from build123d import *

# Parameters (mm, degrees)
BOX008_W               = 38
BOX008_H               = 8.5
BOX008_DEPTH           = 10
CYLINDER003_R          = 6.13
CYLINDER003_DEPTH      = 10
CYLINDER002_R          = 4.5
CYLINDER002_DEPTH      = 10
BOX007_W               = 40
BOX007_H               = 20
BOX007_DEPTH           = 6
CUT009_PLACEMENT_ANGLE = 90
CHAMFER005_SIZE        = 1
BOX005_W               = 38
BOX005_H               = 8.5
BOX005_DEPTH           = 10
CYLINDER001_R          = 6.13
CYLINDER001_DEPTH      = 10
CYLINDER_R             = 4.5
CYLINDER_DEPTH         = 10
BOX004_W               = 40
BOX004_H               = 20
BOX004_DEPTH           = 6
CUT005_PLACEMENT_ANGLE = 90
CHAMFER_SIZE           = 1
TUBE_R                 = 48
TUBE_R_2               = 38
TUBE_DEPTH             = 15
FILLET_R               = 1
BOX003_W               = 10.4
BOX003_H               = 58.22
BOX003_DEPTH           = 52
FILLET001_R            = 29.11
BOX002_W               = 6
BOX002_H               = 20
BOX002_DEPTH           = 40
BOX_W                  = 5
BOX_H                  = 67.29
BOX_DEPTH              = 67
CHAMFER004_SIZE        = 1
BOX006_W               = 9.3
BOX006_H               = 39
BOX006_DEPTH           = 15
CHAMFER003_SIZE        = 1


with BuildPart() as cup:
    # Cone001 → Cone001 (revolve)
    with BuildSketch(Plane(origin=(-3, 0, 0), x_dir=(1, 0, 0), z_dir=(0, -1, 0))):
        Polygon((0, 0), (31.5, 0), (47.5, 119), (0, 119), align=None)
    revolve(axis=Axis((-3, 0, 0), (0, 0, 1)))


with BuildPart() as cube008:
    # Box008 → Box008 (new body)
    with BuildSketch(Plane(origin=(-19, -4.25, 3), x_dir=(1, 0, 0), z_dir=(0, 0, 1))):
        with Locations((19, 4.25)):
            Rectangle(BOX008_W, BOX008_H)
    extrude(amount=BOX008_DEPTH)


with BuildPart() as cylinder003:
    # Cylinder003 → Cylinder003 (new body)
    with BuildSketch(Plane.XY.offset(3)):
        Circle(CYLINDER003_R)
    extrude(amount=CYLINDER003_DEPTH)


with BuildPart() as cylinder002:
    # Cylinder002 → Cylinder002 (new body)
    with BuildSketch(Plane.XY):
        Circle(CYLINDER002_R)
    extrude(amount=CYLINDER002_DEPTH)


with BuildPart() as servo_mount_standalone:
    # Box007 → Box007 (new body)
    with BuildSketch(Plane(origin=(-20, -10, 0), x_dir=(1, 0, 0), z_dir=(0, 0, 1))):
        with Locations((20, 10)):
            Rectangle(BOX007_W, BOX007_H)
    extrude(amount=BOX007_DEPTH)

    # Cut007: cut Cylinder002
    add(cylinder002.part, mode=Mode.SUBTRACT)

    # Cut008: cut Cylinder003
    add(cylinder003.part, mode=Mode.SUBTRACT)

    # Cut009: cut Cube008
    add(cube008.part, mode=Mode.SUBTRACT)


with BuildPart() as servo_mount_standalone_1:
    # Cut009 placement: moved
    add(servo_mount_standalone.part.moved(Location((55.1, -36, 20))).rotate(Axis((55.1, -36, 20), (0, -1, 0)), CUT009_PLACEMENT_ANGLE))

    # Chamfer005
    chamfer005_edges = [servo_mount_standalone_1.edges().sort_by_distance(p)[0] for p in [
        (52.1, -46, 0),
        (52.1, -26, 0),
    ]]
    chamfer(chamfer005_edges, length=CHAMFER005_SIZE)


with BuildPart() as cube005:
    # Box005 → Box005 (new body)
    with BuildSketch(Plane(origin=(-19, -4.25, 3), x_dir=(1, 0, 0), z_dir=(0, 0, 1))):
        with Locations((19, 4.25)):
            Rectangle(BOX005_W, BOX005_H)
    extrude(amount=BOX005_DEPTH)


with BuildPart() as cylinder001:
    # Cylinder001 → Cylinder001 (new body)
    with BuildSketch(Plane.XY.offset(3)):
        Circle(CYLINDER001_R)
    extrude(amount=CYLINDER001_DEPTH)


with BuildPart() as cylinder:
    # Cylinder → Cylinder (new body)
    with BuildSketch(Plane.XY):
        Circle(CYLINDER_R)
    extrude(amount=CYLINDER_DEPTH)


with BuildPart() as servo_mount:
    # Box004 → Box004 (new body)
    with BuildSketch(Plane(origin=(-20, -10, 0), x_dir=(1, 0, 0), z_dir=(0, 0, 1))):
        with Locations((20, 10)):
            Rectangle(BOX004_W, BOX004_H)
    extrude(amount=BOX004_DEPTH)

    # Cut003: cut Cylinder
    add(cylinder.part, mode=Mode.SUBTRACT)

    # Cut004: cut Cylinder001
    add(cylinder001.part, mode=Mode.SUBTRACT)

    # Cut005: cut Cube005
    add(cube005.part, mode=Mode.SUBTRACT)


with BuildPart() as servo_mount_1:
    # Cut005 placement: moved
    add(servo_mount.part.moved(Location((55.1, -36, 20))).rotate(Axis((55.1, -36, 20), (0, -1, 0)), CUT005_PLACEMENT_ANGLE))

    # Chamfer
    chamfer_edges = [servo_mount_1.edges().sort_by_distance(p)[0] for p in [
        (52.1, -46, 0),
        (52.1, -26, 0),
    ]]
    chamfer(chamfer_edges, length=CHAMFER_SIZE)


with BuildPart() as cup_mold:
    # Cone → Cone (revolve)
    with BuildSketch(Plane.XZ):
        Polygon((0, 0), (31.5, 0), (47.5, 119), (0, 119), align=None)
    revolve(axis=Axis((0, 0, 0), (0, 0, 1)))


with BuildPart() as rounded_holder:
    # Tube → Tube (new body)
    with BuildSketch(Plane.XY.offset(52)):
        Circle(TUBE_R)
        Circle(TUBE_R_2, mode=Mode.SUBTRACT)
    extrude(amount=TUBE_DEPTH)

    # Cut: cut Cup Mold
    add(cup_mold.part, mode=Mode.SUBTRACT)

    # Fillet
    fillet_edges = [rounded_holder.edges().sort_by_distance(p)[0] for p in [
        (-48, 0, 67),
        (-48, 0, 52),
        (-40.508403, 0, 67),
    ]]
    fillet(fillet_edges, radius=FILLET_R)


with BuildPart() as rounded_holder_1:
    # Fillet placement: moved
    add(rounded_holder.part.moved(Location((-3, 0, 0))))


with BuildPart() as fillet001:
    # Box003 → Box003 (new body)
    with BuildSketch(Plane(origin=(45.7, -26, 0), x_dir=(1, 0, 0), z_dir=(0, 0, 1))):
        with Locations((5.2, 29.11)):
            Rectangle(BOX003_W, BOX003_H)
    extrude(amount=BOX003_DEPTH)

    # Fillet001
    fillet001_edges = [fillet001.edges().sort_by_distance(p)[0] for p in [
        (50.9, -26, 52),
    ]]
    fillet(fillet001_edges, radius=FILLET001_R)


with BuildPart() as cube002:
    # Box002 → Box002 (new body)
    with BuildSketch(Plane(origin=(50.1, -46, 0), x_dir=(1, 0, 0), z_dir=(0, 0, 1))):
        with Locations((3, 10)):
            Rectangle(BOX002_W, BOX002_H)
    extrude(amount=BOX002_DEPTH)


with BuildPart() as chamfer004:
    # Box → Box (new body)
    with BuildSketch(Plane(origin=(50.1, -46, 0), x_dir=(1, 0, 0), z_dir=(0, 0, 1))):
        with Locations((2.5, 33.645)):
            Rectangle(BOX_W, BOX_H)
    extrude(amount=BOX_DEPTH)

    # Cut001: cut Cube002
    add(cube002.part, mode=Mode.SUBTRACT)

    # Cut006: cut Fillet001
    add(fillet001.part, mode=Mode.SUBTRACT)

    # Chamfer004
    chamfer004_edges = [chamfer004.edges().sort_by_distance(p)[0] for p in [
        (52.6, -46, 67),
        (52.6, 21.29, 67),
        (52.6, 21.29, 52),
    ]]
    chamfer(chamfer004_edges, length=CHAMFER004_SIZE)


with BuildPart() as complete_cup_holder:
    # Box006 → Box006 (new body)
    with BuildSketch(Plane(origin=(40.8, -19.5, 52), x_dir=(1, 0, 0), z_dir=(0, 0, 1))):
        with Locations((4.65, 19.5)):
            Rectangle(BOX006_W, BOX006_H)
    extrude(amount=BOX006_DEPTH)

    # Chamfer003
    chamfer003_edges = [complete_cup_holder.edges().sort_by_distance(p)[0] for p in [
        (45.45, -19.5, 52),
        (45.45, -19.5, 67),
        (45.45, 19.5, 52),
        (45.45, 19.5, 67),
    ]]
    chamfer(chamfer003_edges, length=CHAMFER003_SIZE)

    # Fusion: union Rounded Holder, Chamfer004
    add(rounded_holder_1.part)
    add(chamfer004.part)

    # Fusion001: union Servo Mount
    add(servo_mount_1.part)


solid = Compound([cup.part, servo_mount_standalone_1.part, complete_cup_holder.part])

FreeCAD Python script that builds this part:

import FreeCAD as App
import Part
import Sketcher

V = App.Vector


def edges_at(feature, points):
    """Names of the edges that pass closest to the given points."""
    edges = feature.Shape.Edges
    near = lambda p: min(range(len(edges)), key=lambda i: edges[i].distToShape(Part.Vertex(*p))[0])
    return sorted({f"Edge{near(p) + 1}" for p in points})


def add_polygon(sketch, points):
    """Adds a closed chain of lines whose ends are joined by coincident constraints."""
    first, n = sketch.GeometryCount, len(points)
    for a, b in zip(points, points[1:] + points[:1]):
        sketch.addGeometry(Part.LineSegment(App.Vector(*a, 0), App.Vector(*b, 0)), False)
    for i in range(n):
        sketch.addConstraint(Sketcher.Constraint("Coincident", first + i, 2, first + (i + 1) % n, 1))

doc = App.newDocument("Part")
body = doc.addObject("PartDesign::Body", "Body")

# Sketch on XZ plane
sketch1 = body.newObject("Sketcher::SketchObject", "Sketch")
sketch1.AttachmentSupport = (doc.getObject("XZ_Plane"), [""])
sketch1.MapMode = "FlatFace"
add_polygon(sketch1, [(-3, 0), (28, 0), (44, 119), (-3, 119)])  # lines 0-3
sketch1.addGeometry(Part.LineSegment(V(-3, 0, 0), V(-3, 119, 0)), True)  # axis
sketch1.addConstraint([
    Sketcher.Constraint("Horizontal", 0),
    Sketcher.Constraint("Horizontal", 2),
    Sketcher.Constraint("Vertical", 3),
    Sketcher.Constraint("Vertical", 4),
    Sketcher.Constraint("Coincident", 4, 1, 3, 2),
    Sketcher.Constraint("PointOnObject", 0, 2, -1),
    Sketcher.Constraint("Horizontal", 1, 2, 4, 2),
    Sketcher.Constraint("DistanceY", 3, 2, 3, 1, 119.0),
    Sketcher.Constraint("DistanceX", 0, 1, 0, 2, 31.5),
    Sketcher.Constraint("DistanceX", 2, 2, 2, 1, 47.5),
    Sketcher.Constraint("DistanceX", 2, 2, -1, 1, 3.0),
])
revolution = body.newObject("PartDesign::Revolution", "Revolution")
revolution.Profile = sketch1
revolution.ReferenceAxis = (sketch1, ["Axis0"])
revolution.Angle = 360
body2 = doc.addObject("PartDesign::Body", "Body001")

# Sketch on XY plane
sketch2 = body2.newObject("Sketcher::SketchObject", "Sketch001")
sketch2.AttachmentSupport = (doc.getObject("XY_Plane001"), [""])
sketch2.MapMode = "FlatFace"
sketch2.AttachmentOffset = App.Placement(V(0, 0, 3), App.Rotation())
add_polygon(sketch2, [(-19, 4), (-19, -4), (19, -4), (19, 4)])  # lines 0-3
sketch2.addConstraint([
    Sketcher.Constraint("Vertical", 0),
    Sketcher.Constraint("Horizontal", 1),
    Sketcher.Constraint("Vertical", 2),
    Sketcher.Constraint("Horizontal", 3),
    Sketcher.Constraint("Symmetric", 0, 2, 2, 2, -1, 1),
    Sketcher.Constraint("DistanceX", 1, 1, 1, 2, 38.0),
    Sketcher.Constraint("DistanceY", 0, 2, 0, 1, 8.5),
])
pad1 = body2.newObject("PartDesign::Pad", "Pad")
pad1.Profile = sketch2
pad1.Length = 10
body3 = doc.addObject("PartDesign::Body", "Body002")

# Sketch on XY plane
sketch3 = body3.newObject("Sketcher::SketchObject", "Sketch002")
sketch3.AttachmentSupport = (doc.getObject("XY_Plane002"), [""])
sketch3.MapMode = "FlatFace"
sketch3.AttachmentOffset = App.Placement(V(0, 0, 3), App.Rotation())
sketch3.addGeometry(Part.Circle(V(0, 0, 0), V(0, 0, 1), 6), False)
sketch3.addConstraint([
    Sketcher.Constraint("Coincident", 0, 3, -1, 1),
    Sketcher.Constraint("Diameter", 0, 12.26),
])
pad2 = body3.newObject("PartDesign::Pad", "Pad001")
pad2.Profile = sketch3
pad2.Length = 10
body4 = doc.addObject("PartDesign::Body", "Body003")

# Sketch on XY plane
sketch4 = body4.newObject("Sketcher::SketchObject", "Sketch003")
sketch4.AttachmentSupport = (doc.getObject("XY_Plane003"), [""])
sketch4.MapMode = "FlatFace"
sketch4.addGeometry(Part.Circle(V(0, 0, 0), V(0, 0, 1), 4.5), False)
sketch4.addConstraint([
    Sketcher.Constraint("Coincident", 0, 3, -1, 1),
    Sketcher.Constraint("Diameter", 0, 9.0),
])
pad3 = body4.newObject("PartDesign::Pad", "Pad002")
pad3.Profile = sketch4
pad3.Length = 10
body5 = doc.addObject("PartDesign::Body", "Body004")

# Sketch on XY plane
sketch5 = body5.newObject("Sketcher::SketchObject", "Sketch004")
sketch5.AttachmentSupport = (doc.getObject("XY_Plane004"), [""])
sketch5.MapMode = "FlatFace"
add_polygon(sketch5, [(-20, 10), (-20, -10), (20, -10), (20, 10)])  # lines 0-3
sketch5.addConstraint([
    Sketcher.Constraint("Vertical", 0),
    Sketcher.Constraint("Horizontal", 1),
    Sketcher.Constraint("Vertical", 2),
    Sketcher.Constraint("Horizontal", 3),
    Sketcher.Constraint("Symmetric", 0, 2, 2, 2, -1, 1),
    Sketcher.Constraint("DistanceX", 1, 1, 1, 2, 40.0),
    Sketcher.Constraint("DistanceY", 0, 2, 0, 1, 20.0),
])
pad4 = body5.newObject("PartDesign::Pad", "Pad003")
pad4.Profile = sketch5
pad4.Length = 6
doc.recompute()

boolean = body5.newObject("PartDesign::Boolean", "Boolean")
boolean.Type = "Cut"
boolean.addObjects([body4])
doc.recompute()

boolean2 = body5.newObject("PartDesign::Boolean", "Boolean001")
boolean2.Type = "Cut"
boolean2.addObjects([body3])
doc.recompute()

boolean3 = body5.newObject("PartDesign::Boolean", "Boolean002")
boolean3.Type = "Cut"
boolean3.addObjects([body2])
body6 = doc.addObject("PartDesign::Body", "Body005")
doc.recompute()

body5.Placement = App.Placement(V(55.1, -36, 20), App.Rotation(V(0, -1, 0), 90))
boolean4 = body6.newObject("PartDesign::Boolean", "Boolean003")
boolean4.Type = "Fuse"
boolean4.addObjects([body5])
doc.recompute()

chamfer = body6.newObject("PartDesign::Chamfer", "Chamfer")
chamfer.Base = (boolean4, edges_at(boolean4, [(52.1, -46, 0), (52.1, -26, 0)]))
chamfer.Size = 1
body7 = doc.addObject("PartDesign::Body", "Body006")

# Sketch on XY plane
sketch6 = body7.newObject("Sketcher::SketchObject", "Sketch005")
sketch6.AttachmentSupport = (doc.getObject("XY_Plane006"), [""])
sketch6.MapMode = "FlatFace"
sketch6.AttachmentOffset = App.Placement(V(0, 0, 3), App.Rotation())
add_polygon(sketch6, [(-19, 4), (-19, -4), (19, -4), (19, 4)])  # lines 0-3
sketch6.addConstraint([
    Sketcher.Constraint("Vertical", 0),
    Sketcher.Constraint("Horizontal", 1),
    Sketcher.Constraint("Vertical", 2),
    Sketcher.Constraint("Horizontal", 3),
    Sketcher.Constraint("Symmetric", 0, 2, 2, 2, -1, 1),
    Sketcher.Constraint("DistanceX", 1, 1, 1, 2, 38.0),
    Sketcher.Constraint("DistanceY", 0, 2, 0, 1, 8.5),
])
pad5 = body7.newObject("PartDesign::Pad", "Pad004")
pad5.Profile = sketch6
pad5.Length = 10
body8 = doc.addObject("PartDesign::Body", "Body007")

# Sketch on XY plane
sketch7 = body8.newObject("Sketcher::SketchObject", "Sketch006")
sketch7.AttachmentSupport = (doc.getObject("XY_Plane007"), [""])
sketch7.MapMode = "FlatFace"
sketch7.AttachmentOffset = App.Placement(V(0, 0, 3), App.Rotation())
sketch7.addGeometry(Part.Circle(V(0, 0, 0), V(0, 0, 1), 6), False)
sketch7.addConstraint([
    Sketcher.Constraint("Coincident", 0, 3, -1, 1),
    Sketcher.Constraint("Diameter", 0, 12.26),
])
pad6 = body8.newObject("PartDesign::Pad", "Pad005")
pad6.Profile = sketch7
pad6.Length = 10
body9 = doc.addObject("PartDesign::Body", "Body008")

# Sketch on XY plane
sketch8 = body9.newObject("Sketcher::SketchObject", "Sketch007")
sketch8.AttachmentSupport = (doc.getObject("XY_Plane008"), [""])
sketch8.MapMode = "FlatFace"
sketch8.addGeometry(Part.Circle(V(0, 0, 0), V(0, 0, 1), 4.5), False)
sketch8.addConstraint([
    Sketcher.Constraint("Coincident", 0, 3, -1, 1),
    Sketcher.Constraint("Diameter", 0, 9.0),
])
pad7 = body9.newObject("PartDesign::Pad", "Pad006")
pad7.Profile = sketch8
pad7.Length = 10
body10 = doc.addObject("PartDesign::Body", "Body009")

# Sketch on XY plane
sketch9 = body10.newObject("Sketcher::SketchObject", "Sketch008")
sketch9.AttachmentSupport = (doc.getObject("XY_Plane009"), [""])
sketch9.MapMode = "FlatFace"
add_polygon(sketch9, [(-20, 10), (-20, -10), (20, -10), (20, 10)])  # lines 0-3
sketch9.addConstraint([
    Sketcher.Constraint("Vertical", 0),
    Sketcher.Constraint("Horizontal", 1),
    Sketcher.Constraint("Vertical", 2),
    Sketcher.Constraint("Horizontal", 3),
    Sketcher.Constraint("Symmetric", 0, 2, 2, 2, -1, 1),
    Sketcher.Constraint("DistanceX", 1, 1, 1, 2, 40.0),
    Sketcher.Constraint("DistanceY", 0, 2, 0, 1, 20.0),
])
pad8 = body10.newObject("PartDesign::Pad", "Pad007")
pad8.Profile = sketch9
pad8.Length = 6
doc.recompute()

boolean5 = body10.newObject("PartDesign::Boolean", "Boolean004")
boolean5.Type = "Cut"
boolean5.addObjects([body9])
doc.recompute()

boolean6 = body10.newObject("PartDesign::Boolean", "Boolean005")
boolean6.Type = "Cut"
boolean6.addObjects([body8])
doc.recompute()

boolean7 = body10.newObject("PartDesign::Boolean", "Boolean006")
boolean7.Type = "Cut"
boolean7.addObjects([body7])
body11 = doc.addObject("PartDesign::Body", "Body010")
doc.recompute()

body10.Placement = App.Placement(V(55.1, -36, 20), App.Rotation(V(0, -1, 0), 90))
boolean8 = body11.newObject("PartDesign::Boolean", "Boolean007")
boolean8.Type = "Fuse"
boolean8.addObjects([body10])
doc.recompute()

chamfer2 = body11.newObject("PartDesign::Chamfer", "Chamfer001")
chamfer2.Base = (boolean8, edges_at(boolean8, [(52.1, -46, 0), (52.1, -26, 0)]))
chamfer2.Size = 1
body12 = doc.addObject("PartDesign::Body", "Body011")

# Sketch on XZ plane
sketch10 = body12.newObject("Sketcher::SketchObject", "Sketch009")
sketch10.AttachmentSupport = (doc.getObject("XZ_Plane011"), [""])
sketch10.MapMode = "FlatFace"
add_polygon(sketch10, [(0, 0), (32, 0), (48, 119), (0, 119)])  # lines 0-3
sketch10.addConstraint([
    Sketcher.Constraint("Horizontal", 0),
    Sketcher.Constraint("Horizontal", 2),
    Sketcher.Constraint("Vertical", 3),
    Sketcher.Constraint("Coincident", 3, 2, -1, 1),
    Sketcher.Constraint("DistanceY", 3, 2, 3, 1, 119.0),
    Sketcher.Constraint("DistanceX", 0, 1, 0, 2, 31.5),
    Sketcher.Constraint("DistanceX", 2, 2, 2, 1, 47.5),
])
revolution2 = body12.newObject("PartDesign::Revolution", "Revolution001")
revolution2.Profile = sketch10
revolution2.ReferenceAxis = (sketch10, ["V_Axis"])
revolution2.Angle = 360
body13 = doc.addObject("PartDesign::Body", "Body012")

# Sketch on XY plane
sketch11 = body13.newObject("Sketcher::SketchObject", "Sketch010")
sketch11.AttachmentSupport = (doc.getObject("XY_Plane012"), [""])
sketch11.MapMode = "FlatFace"
sketch11.AttachmentOffset = App.Placement(V(0, 0, 52), App.Rotation())
sketch11.addGeometry([
    Part.Circle(V(0, 0, 0), V(0, 0, 1), 48),
    Part.Circle(V(0, 0, 0), V(0, 0, 1), 38),
], False)
sketch11.addConstraint([
    Sketcher.Constraint("Coincident", 0, 3, -1, 1),
    Sketcher.Constraint("Coincident", 1, 3, -1, 1),
    Sketcher.Constraint("Diameter", 0, 96.0),
    Sketcher.Constraint("Diameter", 1, 76.0),
])
pad9 = body13.newObject("PartDesign::Pad", "Pad008")
pad9.Profile = sketch11
pad9.Length = 15
doc.recompute()

boolean9 = body13.newObject("PartDesign::Boolean", "Boolean008")
boolean9.Type = "Cut"
boolean9.addObjects([body12])
doc.recompute()

fillet = body13.newObject("PartDesign::Fillet", "Fillet")
fillet.Base = (boolean9, edges_at(boolean9, [(-48, 0, 67), (-48, 0, 52), (-40.508, 0, 67)]))
fillet.Radius = 1
body14 = doc.addObject("PartDesign::Body", "Body013")
doc.recompute()

body13.Placement = App.Placement(V(-3, 0, 0), App.Rotation(V(0, 0, 1), 0))
boolean10 = body14.newObject("PartDesign::Boolean", "Boolean009")
boolean10.Type = "Fuse"
boolean10.addObjects([body13])
body15 = doc.addObject("PartDesign::Body", "Body014")

# Sketch on XY plane
sketch12 = body15.newObject("Sketcher::SketchObject", "Sketch011")
sketch12.AttachmentSupport = (doc.getObject("XY_Plane014"), [""])
sketch12.MapMode = "FlatFace"
add_polygon(sketch12, [(46, 32), (46, -26), (56, -26), (56, 32)])  # lines 0-3
sketch12.addConstraint([
    Sketcher.Constraint("Vertical", 0),
    Sketcher.Constraint("Horizontal", 1),
    Sketcher.Constraint("Vertical", 2),
    Sketcher.Constraint("Horizontal", 3),
    Sketcher.Constraint("DistanceX", 1, 1, 1, 2, 10.4),
    Sketcher.Constraint("DistanceY", 0, 2, -1, 1, 26.0),
    Sketcher.Constraint("DistanceY", 0, 2, 0, 1, 58.22),
    Sketcher.Constraint("DistanceX", -1, 1, 0, 2, 45.7),
])
pad10 = body15.newObject("PartDesign::Pad", "Pad009")
pad10.Profile = sketch12
pad10.Length = 52
doc.recompute()

fillet2 = body15.newObject("PartDesign::Fillet", "Fillet001")
fillet2.Base = (pad10, edges_at(pad10, [(50.9, -26, 52)]))
fillet2.Radius = 29.11
body16 = doc.addObject("PartDesign::Body", "Body015")

# Sketch on XY plane
sketch13 = body16.newObject("Sketcher::SketchObject", "Sketch012")
sketch13.AttachmentSupport = (doc.getObject("XY_Plane015"), [""])
sketch13.MapMode = "FlatFace"
add_polygon(sketch13, [(50, -26), (50, -46), (56, -46), (56, -26)])  # lines 0-3
sketch13.addConstraint([
    Sketcher.Constraint("Vertical", 0),
    Sketcher.Constraint("Horizontal", 1),
    Sketcher.Constraint("Vertical", 2),
    Sketcher.Constraint("Horizontal", 3),
    Sketcher.Constraint("DistanceX", 1, 1, 1, 2, 6.0),
    Sketcher.Constraint("DistanceY", 0, 2, 0, 1, 20.0),
    Sketcher.Constraint("DistanceY", 0, 2, -1, 1, 46.0),
    Sketcher.Constraint("DistanceX", -1, 1, 0, 2, 50.1),
])
pad11 = body16.newObject("PartDesign::Pad", "Pad010")
pad11.Profile = sketch13
pad11.Length = 40
body17 = doc.addObject("PartDesign::Body", "Body016")

# Sketch on XY plane
sketch14 = body17.newObject("Sketcher::SketchObject", "Sketch013")
sketch14.AttachmentSupport = (doc.getObject("XY_Plane016"), [""])
sketch14.MapMode = "FlatFace"
add_polygon(sketch14, [(50, 21), (50, -46), (55, -46), (55, 21)])  # lines 0-3
sketch14.addConstraint([
    Sketcher.Constraint("Vertical", 0),
    Sketcher.Constraint("Horizontal", 1),
    Sketcher.Constraint("Vertical", 2),
    Sketcher.Constraint("Horizontal", 3),
    Sketcher.Constraint("DistanceX", 1, 1, 1, 2, 5.0),
    Sketcher.Constraint("DistanceY", 0, 2, -1, 1, 46.0),
    Sketcher.Constraint("DistanceY", 0, 2, 0, 1, 67.29),
    Sketcher.Constraint("DistanceX", -1, 1, 0, 2, 50.1),
])
pad12 = body17.newObject("PartDesign::Pad", "Pad011")
pad12.Profile = sketch14
pad12.Length = 67
doc.recompute()

boolean11 = body17.newObject("PartDesign::Boolean", "Boolean010")
boolean11.Type = "Cut"
boolean11.addObjects([body16])
doc.recompute()

boolean12 = body17.newObject("PartDesign::Boolean", "Boolean011")
boolean12.Type = "Cut"
boolean12.addObjects([body15])
doc.recompute()

chamfer3 = body17.newObject("PartDesign::Chamfer", "Chamfer002")
chamfer3.Base = (boolean12, edges_at(boolean12, [(52.6, -46, 67), (52.6, 21.29, 67), (52.6, 21.29, 52)]))
chamfer3.Size = 1
body18 = doc.addObject("PartDesign::Body", "Body017")

# Sketch on XY plane
sketch15 = body18.newObject("Sketcher::SketchObject", "Sketch014")
sketch15.AttachmentSupport = (doc.getObject("XY_Plane017"), [""])
sketch15.MapMode = "FlatFace"
sketch15.AttachmentOffset = App.Placement(V(0, 0, 52), App.Rotation())
add_polygon(sketch15, [(41, 20), (41, -20), (50, -20), (50, 20)])  # lines 0-3
sketch15.addConstraint([
    Sketcher.Constraint("Vertical", 0),
    Sketcher.Constraint("Horizontal", 1),
    Sketcher.Constraint("Vertical", 2),
    Sketcher.Constraint("Horizontal", 3),
    Sketcher.Constraint("DistanceY", 0, 2, 0, 1, 39.0),
    Sketcher.Constraint("DistanceX", 1, 1, 1, 2, 9.3),
    Sketcher.Constraint("DistanceX", -1, 1, 0, 2, 40.8),
    Sketcher.Constraint("DistanceY", 0, 2, -1, 1, 19.5),
])
pad13 = body18.newObject("PartDesign::Pad", "Pad012")
pad13.Profile = sketch15
pad13.Length = 15
doc.recompute()

chamfer4 = body18.newObject("PartDesign::Chamfer", "Chamfer003")
chamfer4.Base = (pad13, edges_at(pad13, [
    (45.45, -19.5, 52),
    (45.45, -19.5, 67),
    (45.45, 19.5, 52),
    (45.45, 19.5, 67),
]))
chamfer4.Size = 1
doc.recompute()

boolean13 = body18.newObject("PartDesign::Boolean", "Boolean012")
boolean13.Type = "Fuse"
boolean13.addObjects([body14])
doc.recompute()

boolean14 = body18.newObject("PartDesign::Boolean", "Boolean013")
boolean14.Type = "Fuse"
boolean14.addObjects([body17])
doc.recompute()

boolean15 = body18.newObject("PartDesign::Boolean", "Boolean014")
boolean15.Type = "Fuse"
boolean15.addObjects([body11])

doc.recompute()
